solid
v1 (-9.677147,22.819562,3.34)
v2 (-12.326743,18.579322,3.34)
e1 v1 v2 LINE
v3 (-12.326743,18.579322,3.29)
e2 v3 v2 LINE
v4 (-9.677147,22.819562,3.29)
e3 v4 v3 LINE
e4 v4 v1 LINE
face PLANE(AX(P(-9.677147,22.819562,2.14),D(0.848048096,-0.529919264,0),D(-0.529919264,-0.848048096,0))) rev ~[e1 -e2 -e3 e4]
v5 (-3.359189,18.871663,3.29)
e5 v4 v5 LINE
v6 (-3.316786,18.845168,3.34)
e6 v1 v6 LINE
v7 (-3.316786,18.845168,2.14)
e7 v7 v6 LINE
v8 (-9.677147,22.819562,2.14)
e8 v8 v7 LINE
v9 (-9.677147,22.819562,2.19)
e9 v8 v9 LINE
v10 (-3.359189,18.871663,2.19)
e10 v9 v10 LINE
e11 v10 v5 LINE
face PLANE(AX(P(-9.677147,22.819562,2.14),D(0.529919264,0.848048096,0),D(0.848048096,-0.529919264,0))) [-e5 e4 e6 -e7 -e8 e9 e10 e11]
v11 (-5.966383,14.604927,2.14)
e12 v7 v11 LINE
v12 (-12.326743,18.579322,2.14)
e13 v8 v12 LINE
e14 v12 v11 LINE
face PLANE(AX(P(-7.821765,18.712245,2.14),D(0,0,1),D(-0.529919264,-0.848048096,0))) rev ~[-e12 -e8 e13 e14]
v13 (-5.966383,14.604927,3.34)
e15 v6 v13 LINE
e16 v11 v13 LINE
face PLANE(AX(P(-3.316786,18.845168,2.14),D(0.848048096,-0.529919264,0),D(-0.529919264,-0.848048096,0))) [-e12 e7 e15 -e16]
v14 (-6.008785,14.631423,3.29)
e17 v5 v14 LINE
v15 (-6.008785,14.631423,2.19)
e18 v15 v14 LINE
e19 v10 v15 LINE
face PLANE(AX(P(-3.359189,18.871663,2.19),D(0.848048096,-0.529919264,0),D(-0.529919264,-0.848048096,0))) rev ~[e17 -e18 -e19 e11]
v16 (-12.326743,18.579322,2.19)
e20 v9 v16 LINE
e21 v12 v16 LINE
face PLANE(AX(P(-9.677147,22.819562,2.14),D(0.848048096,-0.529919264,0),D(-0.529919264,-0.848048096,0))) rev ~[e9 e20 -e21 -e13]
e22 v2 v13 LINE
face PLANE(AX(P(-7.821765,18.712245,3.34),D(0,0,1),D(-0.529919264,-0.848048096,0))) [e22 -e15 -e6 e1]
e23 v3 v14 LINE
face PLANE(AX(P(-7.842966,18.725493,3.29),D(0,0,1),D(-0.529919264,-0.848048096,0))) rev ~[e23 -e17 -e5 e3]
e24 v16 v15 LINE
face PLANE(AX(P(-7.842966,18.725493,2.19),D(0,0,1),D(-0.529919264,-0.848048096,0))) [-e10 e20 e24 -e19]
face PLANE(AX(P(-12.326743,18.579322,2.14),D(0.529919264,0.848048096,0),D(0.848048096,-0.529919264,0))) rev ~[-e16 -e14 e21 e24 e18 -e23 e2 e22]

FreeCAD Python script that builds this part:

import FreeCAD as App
import Part
import Sketcher


def add_polygon(sketch, points):
    """Adds a closed chain of lines whose ends are joined by coincident constraints."""
    first, n = sketch.GeometryCount, len(points)
    for a, b in zip(points, points[1:] + points[:1]):
        sketch.addGeometry(Part.LineSegment(App.Vector(*a, 0), App.Vector(*b, 0)), False)
    for i in range(n):
        sketch.addConstraint(Sketcher.Constraint("Coincident", first + i, 2, first + (i + 1) % n, 1))

doc = App.newDocument("Part")
body = doc.addObject("PartDesign::Body", "Body")

# Sketch on XY plane
sketch1 = body.newObject("Sketcher::SketchObject", "Sketch")
sketch1.AttachmentSupport = (doc.getObject("XY_Plane"), [""])
sketch1.MapMode = "FlatFace"
sketch1.AttachmentOffset = App.Placement(App.Vector(0, 0, 0.05), App.Rotation())
add_polygon(sketch1, [(0, 7.45), (0, 0), (5, 0), (5, 7.45)])  # lines 0-3
sketch1.addConstraint([
    Sketcher.Constraint("Vertical", 0),
    Sketcher.Constraint("Horizontal", 1),
    Sketcher.Constraint("Vertical", 2),
    Sketcher.Constraint("Horizontal", 3),
    Sketcher.Constraint("Coincident", 0, 2, -1, 1),
    Sketcher.Constraint("DistanceX", 1, 1, 1, 2, 5.0),
    Sketcher.Constraint("DistanceY", 0, 2, 0, 1, 7.45),
])
pad1 = body.newObject("PartDesign::Pad", "Pad")
pad1.Profile = sketch1
pad1.Length = 1.1
body2 = doc.addObject("PartDesign::Body", "Body001")

# Sketch on XY plane
sketch2 = body2.newObject("Sketcher::SketchObject", "Sketch001")
sketch2.AttachmentSupport = (doc.getObject("XY_Plane001"), [""])
sketch2.MapMode = "FlatFace"
add_polygon(sketch2, [(0, 7.5), (0, 0), (5, 0), (5, 7.5)])  # lines 0-3
sketch2.addConstraint([
    Sketcher.Constraint("Vertical", 0),
    Sketcher.Constraint("Horizontal", 1),
    Sketcher.Constraint("Vertical", 2),
    Sketcher.Constraint("Horizontal", 3),
    Sketcher.Constraint("Coincident", 0, 2, -1, 1),
    Sketcher.Constraint("DistanceX", 1, 1, 1, 2, 5.0),
    Sketcher.Constraint("DistanceY", 0, 2, 0, 1, 7.5),
])
pad2 = body2.newObject("PartDesign::Pad", "Pad001")
pad2.Profile = sketch2
pad2.Length = 1.2
doc.recompute()

boolean = body2.newObject("PartDesign::Boolean", "Boolean")
boolean.Type = "Cut"
boolean.addObjects([body])
body3 = doc.addObject("PartDesign::Body", "Body002")
doc.recompute()

body2.Placement = App.Placement(App.Vector(-9.677147, 22.819562, 2.14), App.Rotation(App.Vector(0, 0, -1), 122))
boolean2 = body3.newObject("PartDesign::Boolean", "Boolean001")
boolean2.Type = "Fuse"
boolean2.addObjects([body2])

doc.recompute()
